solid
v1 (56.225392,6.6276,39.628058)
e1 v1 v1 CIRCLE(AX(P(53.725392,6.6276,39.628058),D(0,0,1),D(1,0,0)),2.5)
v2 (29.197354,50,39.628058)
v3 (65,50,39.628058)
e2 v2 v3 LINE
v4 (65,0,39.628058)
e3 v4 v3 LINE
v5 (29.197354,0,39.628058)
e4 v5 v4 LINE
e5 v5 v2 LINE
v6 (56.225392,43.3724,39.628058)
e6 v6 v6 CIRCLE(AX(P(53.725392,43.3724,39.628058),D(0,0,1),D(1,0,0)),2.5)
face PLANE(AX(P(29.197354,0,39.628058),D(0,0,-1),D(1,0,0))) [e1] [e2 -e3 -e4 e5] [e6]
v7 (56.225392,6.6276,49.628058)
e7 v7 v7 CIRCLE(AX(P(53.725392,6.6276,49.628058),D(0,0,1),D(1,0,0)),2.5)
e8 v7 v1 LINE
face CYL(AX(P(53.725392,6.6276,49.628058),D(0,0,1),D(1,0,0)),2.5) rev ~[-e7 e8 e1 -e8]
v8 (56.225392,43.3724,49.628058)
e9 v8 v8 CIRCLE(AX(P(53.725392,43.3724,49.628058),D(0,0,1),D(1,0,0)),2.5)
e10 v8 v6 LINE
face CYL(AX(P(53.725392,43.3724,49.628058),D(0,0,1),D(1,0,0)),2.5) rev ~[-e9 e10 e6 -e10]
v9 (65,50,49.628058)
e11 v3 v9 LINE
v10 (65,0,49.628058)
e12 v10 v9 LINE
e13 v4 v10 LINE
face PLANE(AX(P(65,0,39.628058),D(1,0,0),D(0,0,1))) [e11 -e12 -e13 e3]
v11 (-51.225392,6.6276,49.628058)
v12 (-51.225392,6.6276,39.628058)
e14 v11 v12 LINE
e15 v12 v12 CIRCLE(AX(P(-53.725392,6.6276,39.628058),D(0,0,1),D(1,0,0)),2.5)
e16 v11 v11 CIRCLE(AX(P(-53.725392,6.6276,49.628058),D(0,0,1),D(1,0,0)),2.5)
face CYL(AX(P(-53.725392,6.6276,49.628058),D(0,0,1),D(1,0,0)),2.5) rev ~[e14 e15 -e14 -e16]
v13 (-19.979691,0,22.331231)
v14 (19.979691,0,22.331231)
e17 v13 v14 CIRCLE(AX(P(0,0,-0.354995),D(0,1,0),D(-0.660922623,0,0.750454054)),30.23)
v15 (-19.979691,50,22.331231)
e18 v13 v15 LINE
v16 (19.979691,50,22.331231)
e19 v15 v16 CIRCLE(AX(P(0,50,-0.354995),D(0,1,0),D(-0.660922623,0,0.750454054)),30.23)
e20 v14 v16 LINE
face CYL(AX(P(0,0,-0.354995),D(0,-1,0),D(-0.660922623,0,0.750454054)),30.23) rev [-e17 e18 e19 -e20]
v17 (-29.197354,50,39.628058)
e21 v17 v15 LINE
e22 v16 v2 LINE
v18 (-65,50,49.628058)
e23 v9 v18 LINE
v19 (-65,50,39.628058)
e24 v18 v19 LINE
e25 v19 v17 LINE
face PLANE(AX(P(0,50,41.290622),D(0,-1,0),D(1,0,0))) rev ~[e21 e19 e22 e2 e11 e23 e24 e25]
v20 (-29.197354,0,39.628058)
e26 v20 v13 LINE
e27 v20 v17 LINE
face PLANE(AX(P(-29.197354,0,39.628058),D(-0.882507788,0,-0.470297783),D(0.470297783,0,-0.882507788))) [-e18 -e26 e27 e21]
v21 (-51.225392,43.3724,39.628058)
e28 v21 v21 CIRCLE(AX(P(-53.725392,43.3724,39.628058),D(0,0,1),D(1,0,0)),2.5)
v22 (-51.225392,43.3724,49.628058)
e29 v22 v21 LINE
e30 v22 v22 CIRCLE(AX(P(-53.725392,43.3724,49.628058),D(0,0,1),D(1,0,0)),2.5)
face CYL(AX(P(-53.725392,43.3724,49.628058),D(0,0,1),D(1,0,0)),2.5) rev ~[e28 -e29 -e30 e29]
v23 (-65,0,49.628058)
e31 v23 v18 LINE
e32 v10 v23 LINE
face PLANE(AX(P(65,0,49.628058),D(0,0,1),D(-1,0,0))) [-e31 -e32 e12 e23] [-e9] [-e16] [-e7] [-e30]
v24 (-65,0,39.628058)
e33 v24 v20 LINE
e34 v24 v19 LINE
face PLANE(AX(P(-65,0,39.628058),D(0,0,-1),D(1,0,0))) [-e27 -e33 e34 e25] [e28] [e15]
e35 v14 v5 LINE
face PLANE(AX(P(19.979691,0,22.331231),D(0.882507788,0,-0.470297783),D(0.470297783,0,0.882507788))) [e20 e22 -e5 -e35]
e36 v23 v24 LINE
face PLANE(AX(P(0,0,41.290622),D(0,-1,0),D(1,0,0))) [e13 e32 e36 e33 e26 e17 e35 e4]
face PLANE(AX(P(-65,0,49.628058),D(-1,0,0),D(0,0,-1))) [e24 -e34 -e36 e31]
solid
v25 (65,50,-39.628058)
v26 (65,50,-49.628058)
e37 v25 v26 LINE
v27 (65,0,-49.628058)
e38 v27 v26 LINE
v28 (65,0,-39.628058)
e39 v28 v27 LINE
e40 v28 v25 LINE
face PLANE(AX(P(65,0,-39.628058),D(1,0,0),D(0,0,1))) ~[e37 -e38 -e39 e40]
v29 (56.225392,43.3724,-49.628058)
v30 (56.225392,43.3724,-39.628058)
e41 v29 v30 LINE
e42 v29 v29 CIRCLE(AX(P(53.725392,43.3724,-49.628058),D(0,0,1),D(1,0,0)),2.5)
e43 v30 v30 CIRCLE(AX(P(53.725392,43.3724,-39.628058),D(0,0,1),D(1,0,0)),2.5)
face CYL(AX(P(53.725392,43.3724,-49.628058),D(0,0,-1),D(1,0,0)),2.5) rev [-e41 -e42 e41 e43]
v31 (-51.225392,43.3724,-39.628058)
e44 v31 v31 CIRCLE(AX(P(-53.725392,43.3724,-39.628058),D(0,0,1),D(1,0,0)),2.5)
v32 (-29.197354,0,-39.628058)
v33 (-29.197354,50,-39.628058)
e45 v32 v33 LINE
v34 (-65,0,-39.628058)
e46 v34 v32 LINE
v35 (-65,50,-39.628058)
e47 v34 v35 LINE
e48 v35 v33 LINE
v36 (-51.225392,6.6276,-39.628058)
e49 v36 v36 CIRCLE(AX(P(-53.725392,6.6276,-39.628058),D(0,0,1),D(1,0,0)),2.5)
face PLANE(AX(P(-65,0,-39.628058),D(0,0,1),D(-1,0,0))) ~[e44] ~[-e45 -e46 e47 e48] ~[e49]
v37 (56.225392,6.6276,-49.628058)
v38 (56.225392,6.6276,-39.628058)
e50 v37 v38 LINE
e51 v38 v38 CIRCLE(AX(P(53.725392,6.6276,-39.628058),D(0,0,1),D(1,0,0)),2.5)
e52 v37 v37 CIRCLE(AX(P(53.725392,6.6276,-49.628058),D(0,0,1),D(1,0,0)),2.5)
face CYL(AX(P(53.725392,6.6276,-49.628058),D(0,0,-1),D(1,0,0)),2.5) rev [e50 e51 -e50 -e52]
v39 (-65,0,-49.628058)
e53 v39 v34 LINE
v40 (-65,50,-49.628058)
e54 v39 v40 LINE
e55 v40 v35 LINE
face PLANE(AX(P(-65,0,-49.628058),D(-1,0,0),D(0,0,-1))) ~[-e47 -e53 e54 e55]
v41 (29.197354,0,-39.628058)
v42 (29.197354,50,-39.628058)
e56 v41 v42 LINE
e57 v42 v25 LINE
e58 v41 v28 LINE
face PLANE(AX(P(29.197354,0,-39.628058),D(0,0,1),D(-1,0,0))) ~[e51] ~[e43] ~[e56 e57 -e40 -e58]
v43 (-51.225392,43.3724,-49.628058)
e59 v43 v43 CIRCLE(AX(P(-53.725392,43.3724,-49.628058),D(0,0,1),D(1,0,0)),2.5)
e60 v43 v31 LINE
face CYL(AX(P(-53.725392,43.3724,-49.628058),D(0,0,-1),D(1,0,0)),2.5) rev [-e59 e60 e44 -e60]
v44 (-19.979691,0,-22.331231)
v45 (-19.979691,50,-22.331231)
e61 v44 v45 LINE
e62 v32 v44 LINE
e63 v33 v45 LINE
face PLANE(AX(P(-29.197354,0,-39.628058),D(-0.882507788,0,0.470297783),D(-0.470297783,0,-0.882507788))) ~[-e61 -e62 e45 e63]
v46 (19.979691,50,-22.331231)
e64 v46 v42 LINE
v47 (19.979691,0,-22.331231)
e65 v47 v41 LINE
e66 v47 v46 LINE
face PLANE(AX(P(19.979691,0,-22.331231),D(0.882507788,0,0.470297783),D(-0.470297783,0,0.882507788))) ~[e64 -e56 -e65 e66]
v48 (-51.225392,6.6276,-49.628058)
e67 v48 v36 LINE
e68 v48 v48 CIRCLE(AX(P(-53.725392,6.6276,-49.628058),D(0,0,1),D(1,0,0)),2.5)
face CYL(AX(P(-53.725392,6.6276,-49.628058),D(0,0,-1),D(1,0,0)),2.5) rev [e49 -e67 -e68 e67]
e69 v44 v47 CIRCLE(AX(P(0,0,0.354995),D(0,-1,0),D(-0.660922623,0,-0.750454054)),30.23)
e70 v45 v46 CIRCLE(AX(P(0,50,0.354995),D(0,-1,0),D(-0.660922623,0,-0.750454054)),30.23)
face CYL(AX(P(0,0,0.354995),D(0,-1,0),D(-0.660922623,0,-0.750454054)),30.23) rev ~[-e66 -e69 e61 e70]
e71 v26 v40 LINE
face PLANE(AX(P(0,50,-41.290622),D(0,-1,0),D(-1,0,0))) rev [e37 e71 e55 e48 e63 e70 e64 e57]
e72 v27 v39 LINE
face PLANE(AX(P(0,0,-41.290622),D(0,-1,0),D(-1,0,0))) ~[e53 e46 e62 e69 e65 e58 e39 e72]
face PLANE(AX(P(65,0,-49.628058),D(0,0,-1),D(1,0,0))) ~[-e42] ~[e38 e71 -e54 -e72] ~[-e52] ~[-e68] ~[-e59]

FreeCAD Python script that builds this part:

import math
import FreeCAD as App
import Part
import Sketcher
from FreeCAD import Vector
Q = App.Units.Quantity

doc = App.newDocument("Part")
body = doc.addObject("PartDesign::Body", "Body")

# Sketch on XZ plane
sketch1 = doc.addObject("Sketcher::SketchObject", "Sketch")
body.addObject(sketch1)
sketch1.AttachmentSupport = (doc.XZ_Plane, [""])
sketch1.MapMode = "FlatFace"
sketch1.addGeometry(Part.LineSegment(Vector(65, 40, 0), Vector(65, 50, 0)), False)
sketch1.addGeometry(Part.LineSegment(Vector(65, 50, 0), Vector(-65, 50, 0)), False)
sketch1.addGeometry(Part.LineSegment(Vector(-65, 50, 0), Vector(-65, 40, 0)), False)
sketch1.addGeometry(Part.LineSegment(Vector(-65, 40, 0), Vector(-29, 40, 0)), False)
sketch1.addGeometry(Part.LineSegment(Vector(-29, 40, 0), Vector(-20, 22, 0)), False)
sketch1.addGeometry(Part.ArcOfCircle(Part.Circle(Vector(0, 0, 0), Vector(0, 0, 1), 30), math.radians(49), math.radians(131)), False)
sketch1.addGeometry(Part.LineSegment(Vector(20, 22, 0), Vector(29, 40, 0)), False)
sketch1.addGeometry(Part.LineSegment(Vector(29, 40, 0), Vector(65, 40, 0)), False)
sketch1.addConstraint(Sketcher.Constraint("Coincident", 0, 2, 1, 1))
sketch1.addConstraint(Sketcher.Constraint("Coincident", 1, 2, 2, 1))
sketch1.addConstraint(Sketcher.Constraint("Coincident", 2, 2, 3, 1))
sketch1.addConstraint(Sketcher.Constraint("Coincident", 3, 2, 4, 1))
sketch1.addConstraint(Sketcher.Constraint("Coincident", 4, 2, 5, 2))
sketch1.addConstraint(Sketcher.Constraint("Coincident", 5, 1, 6, 1))
sketch1.addConstraint(Sketcher.Constraint("Coincident", 6, 2, 7, 1))
sketch1.addConstraint(Sketcher.Constraint("Coincident", 7, 2, 0, 1))
sketch1.addConstraint(Sketcher.Constraint("Vertical", 0))
sketch1.addConstraint(Sketcher.Constraint("Horizontal", 1))
sketch1.addConstraint(Sketcher.Constraint("Vertical", 2))
sketch1.addConstraint(Sketcher.Constraint("Horizontal", 3))
sketch1.addConstraint(Sketcher.Constraint("Horizontal", 7))
sketch1.addConstraint(Sketcher.Constraint("Symmetric", 4, 2, 5, 1, -2))
sketch1.addConstraint(Sketcher.Constraint("Symmetric", 3, 2, 6, 2, -2))
sketch1.addConstraint(Sketcher.Constraint("Equal", 3, 7))
sketch1.addConstraint(Sketcher.Constraint("DistanceX", 1, 2, 1, 1, Q("130 mm")))
sketch1.addConstraint(Sketcher.Constraint("DistanceY", 0, 1, 0, 2, Q("10 mm")))
sketch1.addConstraint(Sketcher.Constraint("Radius", 5, Q("30.23 mm")))
sketch1.addConstraint(Sketcher.Constraint("Distance", 4, Q("19.599631 mm")))
sketch1.addConstraint(Sketcher.Constraint("DistanceX", 3, 1, 3, 2, Q("35.802646 mm")))
sketch1.addConstraint(Sketcher.Constraint("DistanceY", -1, 1, 0, 2, Q("49.628058 mm")))
sketch1.addConstraint(Sketcher.Constraint("DistanceX", 4, 2, -1, 1, Q("19.979691 mm")))
pad1 = doc.addObject("PartDesign::Pad", "Pad")
body.addObject(pad1)
pad1.Profile = sketch1
pad1.Length = 50
pad1.Reversed = True

# Sketch on XY plane
sketch2 = doc.addObject("Sketcher::SketchObject", "Sketch001")
body.addObject(sketch2)
sketch2.AttachmentSupport = (doc.XY_Plane, [""])
sketch2.MapMode = "FlatFace"
sketch2.AttachmentOffset = App.Placement(Vector(0, 0, 49.628058), App.Rotation())
sketch2.addGeometry(Part.Circle(Vector(-53.7, 43.4, 0), Vector(0, 0, 1), 2.5), False)
sketch2.addGeometry(Part.Circle(Vector(-53.7, 6.6, 0), Vector(0, 0, 1), 2.5), False)
sketch2.addGeometry(Part.Circle(Vector(53.7, 43.4, 0), Vector(0, 0, 1), 2.5), False)
sketch2.addGeometry(Part.Circle(Vector(53.7, 6.6, 0), Vector(0, 0, 1), 2.5), False)
sketch2.addConstraint(Sketcher.Constraint("Equal", 0, 1))
sketch2.addConstraint(Sketcher.Constraint("Equal", 1, 2))
sketch2.addConstraint(Sketcher.Constraint("Equal", 2, 3))
sketch2.addConstraint(Sketcher.Constraint("Symmetric", 0, 3, 2, 3, -2))
sketch2.addConstraint(Sketcher.Constraint("Symmetric", 1, 3, 3, 3, -2))
sketch2.addConstraint(Sketcher.Constraint("Vertical", 0, 3, 1, 3))
sketch2.addConstraint(Sketcher.Constraint("Diameter", 0, Q("5 mm")))
sketch2.addConstraint(Sketcher.Constraint("DistanceY", -1, 1, 0, 3, Q("43.3724 mm")))
sketch2.addConstraint(Sketcher.Constraint("DistanceY", -1, 1, 1, 3, Q("6.6276 mm")))
sketch2.addConstraint(Sketcher.Constraint("DistanceX", 0, 3, -1, 1, Q("53.725392 mm")))
pocket1 = doc.addObject("PartDesign::Pocket", "Pocket")
body.addObject(pocket1)
pocket1.Profile = sketch2
pocket1.Length = 10
body2 = doc.addObject("PartDesign::Body", "Body001")
doc.recompute()

mirroring = doc.addObject("Part::Mirroring", "Mirroring")
mirroring.Source = body
mirroring.Base = Vector(0, 0, 0)
mirroring.Normal = Vector(0, 0, 1)
body2.BaseFeature = mirroring
doc.recompute()
mirroring.Visibility = False

doc.recompute()
